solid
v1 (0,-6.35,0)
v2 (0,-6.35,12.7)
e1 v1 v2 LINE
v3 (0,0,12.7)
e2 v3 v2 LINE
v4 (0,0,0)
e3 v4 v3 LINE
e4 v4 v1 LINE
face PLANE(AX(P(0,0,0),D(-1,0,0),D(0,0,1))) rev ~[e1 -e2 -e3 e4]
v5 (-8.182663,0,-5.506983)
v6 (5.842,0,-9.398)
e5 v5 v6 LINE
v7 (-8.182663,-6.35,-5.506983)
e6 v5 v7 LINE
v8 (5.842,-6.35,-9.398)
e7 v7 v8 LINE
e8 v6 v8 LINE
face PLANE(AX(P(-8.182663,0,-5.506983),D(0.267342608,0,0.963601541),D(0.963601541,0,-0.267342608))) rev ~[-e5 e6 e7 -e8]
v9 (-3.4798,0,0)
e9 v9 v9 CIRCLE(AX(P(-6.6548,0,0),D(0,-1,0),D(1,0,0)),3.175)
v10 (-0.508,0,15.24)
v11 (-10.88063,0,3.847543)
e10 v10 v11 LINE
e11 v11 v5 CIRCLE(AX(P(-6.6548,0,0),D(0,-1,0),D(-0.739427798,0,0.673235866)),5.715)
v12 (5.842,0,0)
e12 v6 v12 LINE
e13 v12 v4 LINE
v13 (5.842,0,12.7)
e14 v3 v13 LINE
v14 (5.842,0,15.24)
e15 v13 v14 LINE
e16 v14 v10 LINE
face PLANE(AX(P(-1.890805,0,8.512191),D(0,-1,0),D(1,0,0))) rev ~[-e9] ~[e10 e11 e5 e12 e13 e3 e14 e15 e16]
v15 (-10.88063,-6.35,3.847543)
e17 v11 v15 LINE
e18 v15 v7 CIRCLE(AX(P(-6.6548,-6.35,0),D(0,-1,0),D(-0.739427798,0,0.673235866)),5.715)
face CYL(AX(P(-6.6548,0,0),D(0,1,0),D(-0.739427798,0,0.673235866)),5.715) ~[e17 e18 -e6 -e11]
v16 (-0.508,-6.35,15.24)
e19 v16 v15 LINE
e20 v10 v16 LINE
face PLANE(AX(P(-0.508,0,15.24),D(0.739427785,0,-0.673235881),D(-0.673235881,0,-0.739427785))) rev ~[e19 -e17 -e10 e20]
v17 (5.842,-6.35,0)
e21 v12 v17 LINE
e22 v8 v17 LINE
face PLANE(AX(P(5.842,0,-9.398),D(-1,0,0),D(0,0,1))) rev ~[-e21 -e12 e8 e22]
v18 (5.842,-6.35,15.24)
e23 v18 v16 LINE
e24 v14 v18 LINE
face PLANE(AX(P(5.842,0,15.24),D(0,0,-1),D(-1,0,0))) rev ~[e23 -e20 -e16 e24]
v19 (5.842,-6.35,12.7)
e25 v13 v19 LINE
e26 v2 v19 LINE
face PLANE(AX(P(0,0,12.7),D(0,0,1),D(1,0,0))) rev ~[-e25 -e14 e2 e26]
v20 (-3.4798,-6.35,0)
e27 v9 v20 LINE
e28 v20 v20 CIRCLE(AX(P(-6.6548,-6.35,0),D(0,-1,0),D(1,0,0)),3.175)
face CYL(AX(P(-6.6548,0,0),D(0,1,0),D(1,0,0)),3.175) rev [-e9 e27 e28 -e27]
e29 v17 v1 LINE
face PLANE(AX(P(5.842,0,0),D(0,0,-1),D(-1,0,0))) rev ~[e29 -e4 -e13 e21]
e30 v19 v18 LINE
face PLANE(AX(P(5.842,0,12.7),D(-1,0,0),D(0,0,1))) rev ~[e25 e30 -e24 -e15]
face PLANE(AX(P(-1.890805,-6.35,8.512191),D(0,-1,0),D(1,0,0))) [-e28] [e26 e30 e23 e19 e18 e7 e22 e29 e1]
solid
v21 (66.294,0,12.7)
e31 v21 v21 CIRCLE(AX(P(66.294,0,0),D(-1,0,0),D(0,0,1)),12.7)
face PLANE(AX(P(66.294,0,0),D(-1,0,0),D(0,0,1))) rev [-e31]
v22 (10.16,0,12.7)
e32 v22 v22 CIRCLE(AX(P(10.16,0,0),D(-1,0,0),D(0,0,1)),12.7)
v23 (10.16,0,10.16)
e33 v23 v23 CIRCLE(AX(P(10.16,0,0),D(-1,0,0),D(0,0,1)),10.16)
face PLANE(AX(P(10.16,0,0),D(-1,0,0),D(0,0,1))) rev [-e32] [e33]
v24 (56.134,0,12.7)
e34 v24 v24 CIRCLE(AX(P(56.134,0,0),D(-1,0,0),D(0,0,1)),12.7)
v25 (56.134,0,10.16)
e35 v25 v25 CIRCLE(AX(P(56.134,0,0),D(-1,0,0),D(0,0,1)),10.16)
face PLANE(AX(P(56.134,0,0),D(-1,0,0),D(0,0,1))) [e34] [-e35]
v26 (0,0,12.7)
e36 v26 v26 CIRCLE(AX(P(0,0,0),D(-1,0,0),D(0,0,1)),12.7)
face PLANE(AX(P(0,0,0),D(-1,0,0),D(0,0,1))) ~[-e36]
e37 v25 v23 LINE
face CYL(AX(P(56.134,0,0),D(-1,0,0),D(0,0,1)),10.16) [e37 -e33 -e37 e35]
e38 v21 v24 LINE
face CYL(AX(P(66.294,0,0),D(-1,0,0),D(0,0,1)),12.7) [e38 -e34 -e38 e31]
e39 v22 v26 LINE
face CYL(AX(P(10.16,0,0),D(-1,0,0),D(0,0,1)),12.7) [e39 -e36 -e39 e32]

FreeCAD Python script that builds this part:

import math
import FreeCAD as App
import Part
import Sketcher
Q = App.Units.Quantity


def add_polygon(sketch, points):
    """Adds a closed chain of lines whose ends are joined by coincident constraints."""
    first, n = sketch.GeometryCount, len(points)
    for a, b in zip(points, points[1:] + points[:1]):
        sketch.addGeometry(Part.LineSegment(App.Vector(*a, 0), App.Vector(*b, 0)), False)
    for i in range(n):
        sketch.addConstraint(Sketcher.Constraint("Coincident", first + i, 2, first + (i + 1) % n, 1))

doc = App.newDocument("Part")
body = doc.addObject("PartDesign::Body", "Body")

sketch1 = doc.addObject("Sketcher::SketchObject", "Sketch")
body.addObject(sketch1)
sketch1.AttachmentSupport = (doc.XZ_Plane, [""])
sketch1.MapMode = "FlatFace"
add_polygon(sketch1, [(0, 12.7), (0, 0), (66.3, 0), (66.3, 12.7), (56.1, 12.7), (56.1, 10.2), (10.2, 10.2), (10.2, 12.7)])
sketch1.addConstraint([
    Sketcher.Constraint("Vertical", 0),
    Sketcher.Constraint("Horizontal", 1),
    Sketcher.Constraint("Vertical", 2),
    Sketcher.Constraint("Horizontal", 3),
    Sketcher.Constraint("Vertical", 4),
    Sketcher.Constraint("Horizontal", 5),
    Sketcher.Constraint("Vertical", 6),
    Sketcher.Constraint("Horizontal", 7),
    Sketcher.Constraint("Coincident", 0, 2, -1, 1),
    Sketcher.Constraint("Horizontal", 3, 2, 6, 2),
    Sketcher.Constraint("Equal", 3, 7),
    Sketcher.Constraint("DistanceX", 3, 2, 3, 1, Q("0.4 in")),
    Sketcher.Constraint("DistanceY", 0, 2, 0, 1, Q("0.5 in")),
    Sketcher.Constraint("DistanceY", 4, 2, 4, 1, Q("0.1 in")),
    Sketcher.Constraint("DistanceX", 1, 1, 1, 2, Q("2.61 in")),
])
revolution = doc.addObject("PartDesign::Revolution", "Revolution")
body.addObject(revolution)
revolution.Profile = sketch1
revolution.ReferenceAxis = (sketch1, ["H_Axis"])
revolution.Angle = 360
body2 = doc.addObject("PartDesign::Body", "Body001")

sketch2 = doc.addObject("Sketcher::SketchObject", "Sketch001")
body2.addObject(sketch2)
sketch2.AttachmentSupport = (doc.getObject("XZ_Plane001"), [""])
sketch2.MapMode = "FlatFace"
sketch2.addGeometry([
    Part.LineSegment(App.Vector(0, 0, 0), App.Vector(0, 12.7, 0)),
    Part.LineSegment(App.Vector(0, 12.7, 0), App.Vector(5.8, 12.7, 0)),
    Part.LineSegment(App.Vector(5.8, 12.7, 0), App.Vector(5.8, 15.2, 0)),
    Part.LineSegment(App.Vector(5.8, 15.2, 0), App.Vector(-0.5, 15.2, 0)),
    Part.LineSegment(App.Vector(-0.5, 15.2, 0), App.Vector(-10.9, 3.8, 0)),
    Part.ArcOfCircle(Part.Circle(App.Vector(-6.7, 0, 0), App.Vector(0, 0, 1), 5.7), math.radians(138), math.radians(254)),
    Part.LineSegment(App.Vector(-8.2, -5.5, 0), App.Vector(5.8, -9.4, 0)),
    Part.LineSegment(App.Vector(5.8, -9.4, 0), App.Vector(5.8, 0, 0)),
    Part.LineSegment(App.Vector(5.8, 0, 0), App.Vector(0, 0, 0)),
    Part.Circle(App.Vector(-6.7, 0, 0), App.Vector(0, 0, 1), 3.2),
], False)
sketch2.addConstraint([
    Sketcher.Constraint("Coincident", 0, 2, 1, 1),
    Sketcher.Constraint("Coincident", 1, 2, 2, 1),
    Sketcher.Constraint("Coincident", 2, 2, 3, 1),
    Sketcher.Constraint("Coincident", 3, 2, 4, 1),
    Sketcher.Constraint("Tangent", 4, 2, 5, 1),
    Sketcher.Constraint("Tangent", 5, 2, 6, 1),
    Sketcher.Constraint("Coincident", 6, 2, 7, 1),
    Sketcher.Constraint("Coincident", 7, 2, 8, 1),
    Sketcher.Constraint("Coincident", 8, 2, 0, 1),
    Sketcher.Constraint("Vertical", 0),
    Sketcher.Constraint("Horizontal", 1),
    Sketcher.Constraint("Vertical", 2),
    Sketcher.Constraint("Horizontal", 3),
    Sketcher.Constraint("Vertical", 7),
    Sketcher.Constraint("Horizontal", 8),
    Sketcher.Constraint("Coincident", 8, 2, -1, 1),
    Sketcher.Constraint("Coincident", 9, 3, 5, 3),
    Sketcher.Constraint("PointOnObject", 5, 3, -1),
    Sketcher.Constraint("Vertical", 2, 2, 6, 2),
    Sketcher.Constraint("Diameter", 9, Q("0.25 in")),
    Sketcher.Constraint("DistanceY", 0, 1, 0, 2, Q("0.5 in")),
    Sketcher.Constraint("DistanceY", 2, 1, 2, 2, Q("0.1 in")),
    Sketcher.Constraint("Radius", 5, Q("0.225 in")),
    Sketcher.Constraint("DistanceX", 1, 1, 1, 2, Q("0.23 in")),
    Sketcher.Constraint("DistanceX", 3, 2, 3, 1, Q("0.25 in")),
    Sketcher.Constraint("DistanceY", 7, 1, 7, 2, Q("0.37 in")),
    Sketcher.Constraint("DistanceX", 5, 3, -1, 1, Q("0.262 in")),
])
pad1 = doc.addObject("PartDesign::Pad", "Pad")
body2.addObject(pad1)
pad1.Profile = sketch2
pad1.Length = Q("0.25 in")

doc.recompute()
